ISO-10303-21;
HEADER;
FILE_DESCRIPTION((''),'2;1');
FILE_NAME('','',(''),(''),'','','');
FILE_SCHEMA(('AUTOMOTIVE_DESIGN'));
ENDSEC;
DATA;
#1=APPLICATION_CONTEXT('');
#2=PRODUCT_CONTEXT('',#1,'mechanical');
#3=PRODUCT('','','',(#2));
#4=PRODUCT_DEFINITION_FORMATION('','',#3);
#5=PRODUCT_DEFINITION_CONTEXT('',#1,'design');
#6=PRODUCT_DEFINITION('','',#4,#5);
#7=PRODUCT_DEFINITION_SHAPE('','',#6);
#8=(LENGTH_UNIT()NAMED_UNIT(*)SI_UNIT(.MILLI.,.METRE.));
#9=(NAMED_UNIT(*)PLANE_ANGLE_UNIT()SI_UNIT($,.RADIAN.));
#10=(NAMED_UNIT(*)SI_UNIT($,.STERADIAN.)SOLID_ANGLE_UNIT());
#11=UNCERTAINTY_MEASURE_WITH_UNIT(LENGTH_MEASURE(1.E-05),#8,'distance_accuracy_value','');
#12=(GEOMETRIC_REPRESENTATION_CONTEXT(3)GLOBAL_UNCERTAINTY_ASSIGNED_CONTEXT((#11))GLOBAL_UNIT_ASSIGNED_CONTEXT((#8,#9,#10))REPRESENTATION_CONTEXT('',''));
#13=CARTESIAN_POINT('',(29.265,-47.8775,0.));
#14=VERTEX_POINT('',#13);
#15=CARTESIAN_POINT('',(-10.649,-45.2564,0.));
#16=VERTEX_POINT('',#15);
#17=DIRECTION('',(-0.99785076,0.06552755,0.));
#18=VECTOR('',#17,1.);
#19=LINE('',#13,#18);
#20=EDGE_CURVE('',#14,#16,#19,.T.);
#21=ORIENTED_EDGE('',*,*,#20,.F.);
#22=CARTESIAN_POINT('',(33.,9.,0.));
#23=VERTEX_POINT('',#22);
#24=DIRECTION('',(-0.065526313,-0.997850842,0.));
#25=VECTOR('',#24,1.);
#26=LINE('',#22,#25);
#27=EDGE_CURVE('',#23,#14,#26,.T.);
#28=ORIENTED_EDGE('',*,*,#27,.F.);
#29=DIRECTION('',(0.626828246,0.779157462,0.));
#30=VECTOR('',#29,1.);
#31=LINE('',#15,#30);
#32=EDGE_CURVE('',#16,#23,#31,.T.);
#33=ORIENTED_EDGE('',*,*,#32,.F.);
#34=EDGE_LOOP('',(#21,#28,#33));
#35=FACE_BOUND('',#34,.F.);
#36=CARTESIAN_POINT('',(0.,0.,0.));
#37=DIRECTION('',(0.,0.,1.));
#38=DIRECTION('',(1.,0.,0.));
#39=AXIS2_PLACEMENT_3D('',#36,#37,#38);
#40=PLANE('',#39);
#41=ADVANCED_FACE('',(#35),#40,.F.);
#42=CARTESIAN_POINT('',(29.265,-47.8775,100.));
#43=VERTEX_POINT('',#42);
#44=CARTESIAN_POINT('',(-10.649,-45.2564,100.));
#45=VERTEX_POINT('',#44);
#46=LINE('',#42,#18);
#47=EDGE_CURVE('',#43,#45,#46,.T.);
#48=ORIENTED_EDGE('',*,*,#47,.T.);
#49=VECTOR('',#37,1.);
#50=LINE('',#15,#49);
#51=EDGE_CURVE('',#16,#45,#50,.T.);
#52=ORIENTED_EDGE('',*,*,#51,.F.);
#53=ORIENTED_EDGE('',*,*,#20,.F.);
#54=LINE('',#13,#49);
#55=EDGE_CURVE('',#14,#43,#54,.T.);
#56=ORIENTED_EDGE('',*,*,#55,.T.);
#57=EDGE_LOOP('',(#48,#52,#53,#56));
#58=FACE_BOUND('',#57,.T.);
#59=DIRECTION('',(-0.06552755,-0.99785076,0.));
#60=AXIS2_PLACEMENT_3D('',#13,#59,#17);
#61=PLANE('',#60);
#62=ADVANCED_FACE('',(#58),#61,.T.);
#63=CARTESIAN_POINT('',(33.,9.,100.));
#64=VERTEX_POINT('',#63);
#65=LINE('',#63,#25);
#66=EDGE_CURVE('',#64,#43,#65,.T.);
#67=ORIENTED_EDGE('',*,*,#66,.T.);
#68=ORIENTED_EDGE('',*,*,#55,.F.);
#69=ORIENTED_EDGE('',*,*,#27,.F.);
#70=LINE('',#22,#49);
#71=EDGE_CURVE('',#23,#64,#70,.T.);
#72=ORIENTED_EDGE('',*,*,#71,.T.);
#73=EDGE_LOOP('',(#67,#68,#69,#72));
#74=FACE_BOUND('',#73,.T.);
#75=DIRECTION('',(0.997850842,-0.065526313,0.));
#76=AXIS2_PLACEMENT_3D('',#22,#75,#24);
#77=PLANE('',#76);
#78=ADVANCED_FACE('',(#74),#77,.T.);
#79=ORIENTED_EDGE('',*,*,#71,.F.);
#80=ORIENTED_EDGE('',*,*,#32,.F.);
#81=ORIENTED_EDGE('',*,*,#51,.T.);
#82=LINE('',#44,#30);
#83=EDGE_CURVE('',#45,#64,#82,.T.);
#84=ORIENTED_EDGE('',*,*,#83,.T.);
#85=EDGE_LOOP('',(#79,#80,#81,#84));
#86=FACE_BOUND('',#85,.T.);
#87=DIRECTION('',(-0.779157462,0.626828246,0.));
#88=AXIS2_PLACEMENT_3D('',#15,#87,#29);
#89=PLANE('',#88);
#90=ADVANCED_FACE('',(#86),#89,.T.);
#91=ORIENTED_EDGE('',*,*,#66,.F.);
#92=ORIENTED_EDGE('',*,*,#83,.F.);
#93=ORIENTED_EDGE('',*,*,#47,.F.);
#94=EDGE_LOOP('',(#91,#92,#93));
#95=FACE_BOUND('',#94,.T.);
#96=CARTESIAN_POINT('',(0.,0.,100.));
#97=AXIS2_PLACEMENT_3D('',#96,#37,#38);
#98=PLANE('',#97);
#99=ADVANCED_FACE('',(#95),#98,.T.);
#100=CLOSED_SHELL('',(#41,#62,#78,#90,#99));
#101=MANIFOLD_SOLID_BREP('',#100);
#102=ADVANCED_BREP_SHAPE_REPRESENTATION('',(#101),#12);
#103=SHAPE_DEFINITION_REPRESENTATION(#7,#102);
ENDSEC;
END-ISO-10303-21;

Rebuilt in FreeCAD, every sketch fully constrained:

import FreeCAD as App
import Part
import Sketcher

V = App.Vector
Q = App.Units.Quantity

doc = App.newDocument("Part")
body = doc.addObject("PartDesign::Body", "Body")

# Sketch on XY plane
sketch1 = body.newObject("Sketcher::SketchObject", "Sketch")
sketch1.AttachmentSupport = (doc.getObject("XY_Plane"), [""])
sketch1.MapMode = "FlatFace"
sketch1.addGeometry([
    Part.LineSegment(V(29, -48, 0), V(33, 9, 0)),
    Part.LineSegment(V(33, 9, 0), V(-11, -45, 0)),
    Part.LineSegment(V(-11, -45, 0), V(29, -48, 0)),
], False)
sketch1.addConstraint([
    Sketcher.Constraint("Coincident", 0, 2, 1, 1),
    Sketcher.Constraint("Coincident", 1, 2, 2, 1),
    Sketcher.Constraint("Coincident", 2, 2, 0, 1),
    Sketcher.Constraint("Perpendicular", 0, 2),
    Sketcher.Constraint("Distance", 0, Q("2.2441 in")),
    Sketcher.Constraint("Distance", 2, Q("1.5748 in")),
    Sketcher.Constraint("DistanceY", 2, 2, 1, 2, Q("0.1032 in")),
    Sketcher.Constraint("DistanceX", -1, 1, 0, 2, Q("33 mm")),
    Sketcher.Constraint("DistanceY", -1, 1, 0, 2, Q("9 mm")),
])
pad1 = body.newObject("PartDesign::Pad", "Pad")
pad1.Profile = sketch1
pad1.Length = Q("3.9370079 in")

doc.recompute()
